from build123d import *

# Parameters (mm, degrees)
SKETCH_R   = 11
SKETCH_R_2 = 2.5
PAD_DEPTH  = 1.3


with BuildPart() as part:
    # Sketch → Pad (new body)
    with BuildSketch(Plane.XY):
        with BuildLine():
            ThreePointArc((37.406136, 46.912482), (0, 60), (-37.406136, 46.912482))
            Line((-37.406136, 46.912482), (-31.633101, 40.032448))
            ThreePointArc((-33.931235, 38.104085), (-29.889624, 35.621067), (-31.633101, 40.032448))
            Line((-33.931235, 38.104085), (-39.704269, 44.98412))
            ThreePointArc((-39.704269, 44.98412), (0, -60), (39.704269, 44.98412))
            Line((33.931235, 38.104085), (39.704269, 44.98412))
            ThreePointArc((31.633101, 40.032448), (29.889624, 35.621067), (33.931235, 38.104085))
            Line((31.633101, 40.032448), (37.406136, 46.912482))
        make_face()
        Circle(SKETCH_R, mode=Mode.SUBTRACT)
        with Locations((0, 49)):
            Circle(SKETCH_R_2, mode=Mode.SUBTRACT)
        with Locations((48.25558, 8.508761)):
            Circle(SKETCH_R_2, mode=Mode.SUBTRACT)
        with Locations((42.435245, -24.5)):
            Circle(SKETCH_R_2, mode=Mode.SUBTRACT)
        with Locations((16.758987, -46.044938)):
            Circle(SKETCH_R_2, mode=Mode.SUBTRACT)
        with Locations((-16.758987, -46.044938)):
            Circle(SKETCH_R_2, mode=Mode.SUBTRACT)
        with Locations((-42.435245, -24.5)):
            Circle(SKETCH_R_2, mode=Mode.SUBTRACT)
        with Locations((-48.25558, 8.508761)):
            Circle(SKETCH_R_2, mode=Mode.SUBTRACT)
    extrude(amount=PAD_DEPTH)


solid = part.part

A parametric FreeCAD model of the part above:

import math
import FreeCAD as App
import Part
import Sketcher

V = App.Vector
Q = App.Units.Quantity

doc = App.newDocument("Part")
body = doc.addObject("PartDesign::Body", "Body")

# Sketch on XY plane
sketch1 = doc.addObject("Sketcher::SketchObject", "Sketch")
body.addObject(sketch1)
sketch1.AttachmentSupport = (doc.XY_Plane, [""])
sketch1.MapMode = "FlatFace"
sketch1.addGeometry(Part.ArcOfCircle(Part.Circle(V(0, 0, 0), V(0, 0, 1), 60), math.radians(51), math.radians(129)), False)
sketch1.addGeometry(Part.LineSegment(V(-37.4, 46.9, 0), V(-31.6, 40, 0)), False)
sketch1.addGeometry(Part.ArcOfCircle(Part.Circle(V(-31.5, 37.5, 0), V(0, 0, 1), 2.5), math.radians(167), math.radians(453)), False)
sketch1.addGeometry(Part.LineSegment(V(-33.9, 38.1, 0), V(-39.7, 45, 0)), False)
sketch1.addGeometry(Part.ArcOfCircle(Part.Circle(V(0, 0, 0), V(0, 0, 1), 60), math.radians(131), math.radians(409)), False)
sketch1.addGeometry(Part.LineSegment(V(39.7, 45, 0), V(33.9, 38.1, 0)), False)
sketch1.addGeometry(Part.ArcOfCircle(Part.Circle(V(31.5, 37.5, 0), V(0, 0, 1), 2.5), math.radians(87), math.radians(373)), False)
sketch1.addGeometry(Part.LineSegment(V(31.6, 40, 0), V(37.4, 46.9, 0)), False)
sketch1.addGeometry(Part.Circle(V(-42.4, -24.5, 0), V(0, 0, 1), 2.5), False)
sketch1.addGeometry(Part.Circle(V(-16.8, -46, 0), V(0, 0, 1), 2.5), False)
sketch1.addGeometry(Part.Circle(V(16.8, -46, 0), V(0, 0, 1), 2.5), False)
sketch1.addGeometry(Part.Circle(V(42.4, -24.5, 0), V(0, 0, 1), 2.5), False)
sketch1.addGeometry(Part.Circle(V(0, 0, 0), V(0, 0, 1), 11), False)
sketch1.addGeometry(Part.Circle(V(-48.3, 8.5, 0), V(0, 0, 1), 2.5), False)
sketch1.addGeometry(Part.Circle(V(48.3, 8.5, 0), V(0, 0, 1), 2.5), False)
sketch1.addGeometry(Part.Circle(V(0, 49, 0), V(0, 0, 1), 2.5), False)
sketch1.addConstraint(Sketcher.Constraint("Coincident", 0, 2, 1, 1))
sketch1.addConstraint(Sketcher.Constraint("Coincident", 1, 2, 2, 2))
sketch1.addConstraint(Sketcher.Constraint("Coincident", 2, 1, 3, 1))
sketch1.addConstraint(Sketcher.Constraint("Coincident", 3, 2, 4, 1))
sketch1.addConstraint(Sketcher.Constraint("Coincident", 4, 2, 5, 1))
sketch1.addConstraint(Sketcher.Constraint("Coincident", 5, 2, 6, 2))
sketch1.addConstraint(Sketcher.Constraint("Coincident", 6, 1, 7, 1))
sketch1.addConstraint(Sketcher.Constraint("Coincident", 7, 2, 0, 1))
sketch1.addConstraint(Sketcher.Constraint("Coincident", 0, 3, -1, 1))
sketch1.addConstraint(Sketcher.Constraint("Coincident", 4, 3, -1, 1))
sketch1.addConstraint(Sketcher.Constraint("Coincident", 12, 3, -1, 1))
sketch1.addConstraint(Sketcher.Constraint("Equal", 0, 4))
sketch1.addConstraint(Sketcher.Constraint("Equal", 2, 6))
sketch1.addConstraint(Sketcher.Constraint("Equal", 6, 8))
sketch1.addConstraint(Sketcher.Constraint("Equal", 8, 9))
sketch1.addConstraint(Sketcher.Constraint("Equal", 9, 10))
sketch1.addConstraint(Sketcher.Constraint("Equal", 10, 11))
sketch1.addConstraint(Sketcher.Constraint("Equal", 11, 13))
sketch1.addConstraint(Sketcher.Constraint("Equal", 13, 14))
sketch1.addConstraint(Sketcher.Constraint("Equal", 14, 15))
sketch1.addConstraint(Sketcher.Constraint("Symmetric", 2, 3, 6, 3, -2))
sketch1.addConstraint(Sketcher.Constraint("Symmetric", 9, 3, 10, 3, -2))
sketch1.addConstraint(Sketcher.Constraint("Symmetric", 8, 3, 11, 3, -2))
sketch1.addConstraint(Sketcher.Constraint("Symmetric", 13, 3, 14, 3, -2))
sketch1.addConstraint(Sketcher.Constraint("PointOnObject", 15, 3, -2))
sketch1.addConstraint(Sketcher.Constraint("Parallel", 1, 3))
sketch1.addConstraint(Sketcher.Constraint("Parallel", 5, 7))
sketch1.addConstraint(Sketcher.Constraint("Horizontal", 3, 2, 4, 2))
sketch1.addConstraint(Sketcher.Constraint("Horizontal", 2, 1, 5, 2))
sketch1.addConstraint(Sketcher.Constraint("Horizontal", 1, 2, 6, 1))
sketch1.addConstraint(Sketcher.Constraint("Equal", 1, 3))
sketch1.addConstraint(Sketcher.Constraint("Diameter", 8, Q("5 mm")))
sketch1.addConstraint(Sketcher.Constraint("Diameter", 12, Q("22 mm")))
sketch1.addConstraint(Sketcher.Constraint("Radius", 0, Q("59.999999 mm")))
sketch1.addConstraint(Sketcher.Constraint("Angle", 1, Q("-49.999995 deg")))
sketch1.addConstraint(Sketcher.Constraint("DistanceY", -1, 1, 15, 3, Q("49 mm")))
sketch1.addConstraint(Sketcher.Constraint("DistanceY", 8, 3, -1, 1, Q("24.5 mm")))
sketch1.addConstraint(Sketcher.Constraint("DistanceX", 1, 2, -1, 1, Q("31.633101 mm")))
sketch1.addConstraint(Sketcher.Constraint("DistanceX", 0, 2, 2, 1, Q("3.474901 mm")))
sketch1.addConstraint(Sketcher.Constraint("DistanceY", 9, 3, -1, 1, Q("46.044938 mm")))
sketch1.addConstraint(Sketcher.Constraint("DistanceX", 13, 3, -1, 1, Q("48.25558 mm")))
sketch1.addConstraint(Sketcher.Constraint("DistanceY", -1, 1, 13, 3, Q("8.508761 mm")))
sketch1.addConstraint(Sketcher.Constraint("DistanceY", -1, 1, 1, 2, Q("40.032448 mm")))
sketch1.addConstraint(Sketcher.Constraint("DistanceX", 8, 3, 2, 3, Q("10.938652 mm")))
sketch1.addConstraint(Sketcher.Constraint("DistanceX", 8, 3, 9, 3, Q("25.676258 mm")))
pad1 = doc.addObject("PartDesign::Pad", "Pad")
body.addObject(pad1)
pad1.Profile = sketch1
pad1.Length = 1.3

doc.recompute()
